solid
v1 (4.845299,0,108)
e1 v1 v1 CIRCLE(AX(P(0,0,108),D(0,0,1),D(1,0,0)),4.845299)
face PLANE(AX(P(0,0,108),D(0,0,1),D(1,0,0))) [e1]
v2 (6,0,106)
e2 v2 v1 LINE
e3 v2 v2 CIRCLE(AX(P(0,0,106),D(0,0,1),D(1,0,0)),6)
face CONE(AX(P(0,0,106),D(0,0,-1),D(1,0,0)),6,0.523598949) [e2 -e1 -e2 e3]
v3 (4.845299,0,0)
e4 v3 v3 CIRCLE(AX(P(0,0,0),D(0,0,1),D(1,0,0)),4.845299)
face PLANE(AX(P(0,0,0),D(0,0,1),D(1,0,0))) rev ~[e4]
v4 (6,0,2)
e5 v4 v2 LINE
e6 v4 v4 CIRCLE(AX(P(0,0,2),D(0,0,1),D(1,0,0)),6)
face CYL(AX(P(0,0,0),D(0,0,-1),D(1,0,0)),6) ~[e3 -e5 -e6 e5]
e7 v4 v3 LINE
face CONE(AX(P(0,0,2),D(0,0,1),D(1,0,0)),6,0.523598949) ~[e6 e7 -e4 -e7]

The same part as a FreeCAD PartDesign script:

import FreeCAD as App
import Part
import Sketcher

doc = App.newDocument("Part")
body = doc.addObject("PartDesign::Body", "Body")

# Sketch on XY plane
sketch1 = doc.addObject("Sketcher::SketchObject", "Sketch")
body.addObject(sketch1)
sketch1.AttachmentSupport = (doc.XY_Plane, [""])
sketch1.MapMode = "FlatFace"
sketch1.addGeometry(Part.Circle(App.Vector(0, 0, 0), App.Vector(0, 0, 1), 6), False)
sketch1.addConstraint(Sketcher.Constraint("Coincident", 0, 3, -1, 1))
sketch1.addConstraint(Sketcher.Constraint("Diameter", 0, 12.0))
pad1 = doc.addObject("PartDesign::Pad", "Pad")
body.addObject(pad1)
pad1.Profile = sketch1
pad1.Length = 108
doc.recompute()

chamfer = doc.addObject("PartDesign::Chamfer", "Chamfer")
body.addObject(chamfer)
chamfer.Base = (pad1, ["Edge1"])
chamfer.UseAllEdges = True
chamfer.ChamferType = "Two distances"
chamfer.Size = 2
chamfer.Size2 = 1.154701

doc.recompute()
